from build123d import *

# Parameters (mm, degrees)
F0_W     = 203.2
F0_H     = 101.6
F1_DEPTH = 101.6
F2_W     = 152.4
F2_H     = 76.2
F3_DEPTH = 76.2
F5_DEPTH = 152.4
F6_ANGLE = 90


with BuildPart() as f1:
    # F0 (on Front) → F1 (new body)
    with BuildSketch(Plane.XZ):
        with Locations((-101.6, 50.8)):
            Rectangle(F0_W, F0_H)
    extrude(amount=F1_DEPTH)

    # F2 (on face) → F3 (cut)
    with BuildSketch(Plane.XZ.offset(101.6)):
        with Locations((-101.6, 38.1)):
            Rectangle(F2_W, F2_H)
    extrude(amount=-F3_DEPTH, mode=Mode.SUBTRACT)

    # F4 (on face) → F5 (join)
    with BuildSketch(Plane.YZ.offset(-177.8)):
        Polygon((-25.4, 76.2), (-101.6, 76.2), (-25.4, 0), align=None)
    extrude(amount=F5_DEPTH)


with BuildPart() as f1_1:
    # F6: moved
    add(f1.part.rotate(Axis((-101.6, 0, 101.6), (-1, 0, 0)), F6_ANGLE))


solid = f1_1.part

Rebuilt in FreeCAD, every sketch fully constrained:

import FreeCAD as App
import Part
import Sketcher

V = App.Vector
Q = App.Units.Quantity

doc = App.newDocument("Part")
body = doc.addObject("PartDesign::Body", "Body")

# Sketch on XZ plane
sketch1 = body.newObject("Sketcher::SketchObject", "Sketch")
sketch1.AttachmentSupport = (doc.getObject("XZ_Plane"), [""])
sketch1.MapMode = "FlatFace"
sketch1.addGeometry(Part.LineSegment(V(-203, 102, 0), V(-203, 0, 0)), False)
sketch1.addGeometry(Part.LineSegment(V(-203, 0, 0), V(0, 0, 0)), False)
sketch1.addGeometry(Part.LineSegment(V(0, 0, 0), V(0, 102, 0)), False)
sketch1.addGeometry(Part.LineSegment(V(0, 102, 0), V(-203, 102, 0)), False)
sketch1.addConstraint(Sketcher.Constraint("Coincident", 0, 2, 1, 1))
sketch1.addConstraint(Sketcher.Constraint("Coincident", 1, 2, 2, 1))
sketch1.addConstraint(Sketcher.Constraint("Coincident", 2, 2, 3, 1))
sketch1.addConstraint(Sketcher.Constraint("Coincident", 3, 2, 0, 1))
sketch1.addConstraint(Sketcher.Constraint("Vertical", 0))
sketch1.addConstraint(Sketcher.Constraint("Horizontal", 1))
sketch1.addConstraint(Sketcher.Constraint("Vertical", 2))
sketch1.addConstraint(Sketcher.Constraint("Horizontal", 3))
sketch1.addConstraint(Sketcher.Constraint("Coincident", 1, 2, -1, 1))
sketch1.addConstraint(Sketcher.Constraint("DistanceX", 1, 1, 1, 2, Q("8 in")))
sketch1.addConstraint(Sketcher.Constraint("DistanceY", 0, 2, 0, 1, Q("4 in")))
pad1 = body.newObject("PartDesign::Pad", "Pad")
pad1.Profile = sketch1
pad1.Length = Q("4 in")

# Sketch on XZ plane
sketch2 = body.newObject("Sketcher::SketchObject", "Sketch001")
sketch2.AttachmentSupport = (doc.getObject("XZ_Plane"), [""])
sketch2.MapMode = "FlatFace"
sketch2.AttachmentOffset = App.Placement(V(0, 0, 4 * 25.4), App.Rotation())
sketch2.addGeometry(Part.LineSegment(V(-178, 76, 0), V(-178, 0, 0)), False)
sketch2.addGeometry(Part.LineSegment(V(-178, 0, 0), V(-25, 0, 0)), False)
sketch2.addGeometry(Part.LineSegment(V(-25, 0, 0), V(-25, 76, 0)), False)
sketch2.addGeometry(Part.LineSegment(V(-25, 76, 0), V(-178, 76, 0)), False)
sketch2.addConstraint(Sketcher.Constraint("Coincident", 0, 2, 1, 1))
sketch2.addConstraint(Sketcher.Constraint("Coincident", 1, 2, 2, 1))
sketch2.addConstraint(Sketcher.Constraint("Coincident", 2, 2, 3, 1))
sketch2.addConstraint(Sketcher.Constraint("Coincident", 3, 2, 0, 1))
sketch2.addConstraint(Sketcher.Constraint("Vertical", 0))
sketch2.addConstraint(Sketcher.Constraint("Horizontal", 1))
sketch2.addConstraint(Sketcher.Constraint("Vertical", 2))
sketch2.addConstraint(Sketcher.Constraint("Horizontal", 3))
sketch2.addConstraint(Sketcher.Constraint("PointOnObject", 0, 2, -1))
sketch2.addConstraint(Sketcher.Constraint("DistanceX", 1, 1, 1, 2, Q("6 in")))
sketch2.addConstraint(Sketcher.Constraint("DistanceY", 0, 2, 0, 1, Q("3 in")))
sketch2.addConstraint(Sketcher.Constraint("DistanceX", 0, 2, -1, 1, Q("7 in")))
pocket1 = body.newObject("PartDesign::Pocket", "Pocket")
pocket1.Profile = sketch2
pocket1.Length = Q("3 in")

# Sketch on YZ plane
sketch3 = body.newObject("Sketcher::SketchObject", "Sketch002")
sketch3.AttachmentSupport = (doc.getObject("YZ_Plane"), [""])
sketch3.MapMode = "FlatFace"
sketch3.AttachmentOffset = App.Placement(V(0, 0, -7 * 25.4), App.Rotation())
sketch3.addGeometry(Part.LineSegment(V(-25, 76, 0), V(-102, 76, 0)), False)
sketch3.addGeometry(Part.LineSegment(V(-102, 76, 0), V(-25, 0, 0)), False)
sketch3.addGeometry(Part.LineSegment(V(-25, 0, 0), V(-25, 76, 0)), False)
sketch3.addConstraint(Sketcher.Constraint("Coincident", 0, 2, 1, 1))
sketch3.addConstraint(Sketcher.Constraint("Coincident", 1, 2, 2, 1))
sketch3.addConstraint(Sketcher.Constraint("Coincident", 2, 2, 0, 1))
sketch3.addConstraint(Sketcher.Constraint("Horizontal", 0))
sketch3.addConstraint(Sketcher.Constraint("Vertical", 2))
sketch3.addConstraint(Sketcher.Constraint("PointOnObject", 1, 2, -1))
sketch3.addConstraint(Sketcher.Constraint("Equal", 0, 2))
sketch3.addConstraint(Sketcher.Constraint("DistanceX", 0, 2, 0, 1, Q("3 in")))
sketch3.addConstraint(Sketcher.Constraint("DistanceX", 0, 2, -1, 1, Q("4 in")))
pad2 = body.newObject("PartDesign::Pad", "Pad001")
pad2.Profile = sketch3
pad2.Length = Q("6 in")
body2 = doc.addObject("PartDesign::Body", "Body001")
doc.recompute()

body.Placement = App.Placement(V(0, -101.6, 101.6), App.Rotation(V(-1, 0, 0), 90))
boolean = body2.newObject("PartDesign::Boolean", "Boolean")
boolean.Type = "Fuse"
boolean.addObjects([body])

doc.recompute()
